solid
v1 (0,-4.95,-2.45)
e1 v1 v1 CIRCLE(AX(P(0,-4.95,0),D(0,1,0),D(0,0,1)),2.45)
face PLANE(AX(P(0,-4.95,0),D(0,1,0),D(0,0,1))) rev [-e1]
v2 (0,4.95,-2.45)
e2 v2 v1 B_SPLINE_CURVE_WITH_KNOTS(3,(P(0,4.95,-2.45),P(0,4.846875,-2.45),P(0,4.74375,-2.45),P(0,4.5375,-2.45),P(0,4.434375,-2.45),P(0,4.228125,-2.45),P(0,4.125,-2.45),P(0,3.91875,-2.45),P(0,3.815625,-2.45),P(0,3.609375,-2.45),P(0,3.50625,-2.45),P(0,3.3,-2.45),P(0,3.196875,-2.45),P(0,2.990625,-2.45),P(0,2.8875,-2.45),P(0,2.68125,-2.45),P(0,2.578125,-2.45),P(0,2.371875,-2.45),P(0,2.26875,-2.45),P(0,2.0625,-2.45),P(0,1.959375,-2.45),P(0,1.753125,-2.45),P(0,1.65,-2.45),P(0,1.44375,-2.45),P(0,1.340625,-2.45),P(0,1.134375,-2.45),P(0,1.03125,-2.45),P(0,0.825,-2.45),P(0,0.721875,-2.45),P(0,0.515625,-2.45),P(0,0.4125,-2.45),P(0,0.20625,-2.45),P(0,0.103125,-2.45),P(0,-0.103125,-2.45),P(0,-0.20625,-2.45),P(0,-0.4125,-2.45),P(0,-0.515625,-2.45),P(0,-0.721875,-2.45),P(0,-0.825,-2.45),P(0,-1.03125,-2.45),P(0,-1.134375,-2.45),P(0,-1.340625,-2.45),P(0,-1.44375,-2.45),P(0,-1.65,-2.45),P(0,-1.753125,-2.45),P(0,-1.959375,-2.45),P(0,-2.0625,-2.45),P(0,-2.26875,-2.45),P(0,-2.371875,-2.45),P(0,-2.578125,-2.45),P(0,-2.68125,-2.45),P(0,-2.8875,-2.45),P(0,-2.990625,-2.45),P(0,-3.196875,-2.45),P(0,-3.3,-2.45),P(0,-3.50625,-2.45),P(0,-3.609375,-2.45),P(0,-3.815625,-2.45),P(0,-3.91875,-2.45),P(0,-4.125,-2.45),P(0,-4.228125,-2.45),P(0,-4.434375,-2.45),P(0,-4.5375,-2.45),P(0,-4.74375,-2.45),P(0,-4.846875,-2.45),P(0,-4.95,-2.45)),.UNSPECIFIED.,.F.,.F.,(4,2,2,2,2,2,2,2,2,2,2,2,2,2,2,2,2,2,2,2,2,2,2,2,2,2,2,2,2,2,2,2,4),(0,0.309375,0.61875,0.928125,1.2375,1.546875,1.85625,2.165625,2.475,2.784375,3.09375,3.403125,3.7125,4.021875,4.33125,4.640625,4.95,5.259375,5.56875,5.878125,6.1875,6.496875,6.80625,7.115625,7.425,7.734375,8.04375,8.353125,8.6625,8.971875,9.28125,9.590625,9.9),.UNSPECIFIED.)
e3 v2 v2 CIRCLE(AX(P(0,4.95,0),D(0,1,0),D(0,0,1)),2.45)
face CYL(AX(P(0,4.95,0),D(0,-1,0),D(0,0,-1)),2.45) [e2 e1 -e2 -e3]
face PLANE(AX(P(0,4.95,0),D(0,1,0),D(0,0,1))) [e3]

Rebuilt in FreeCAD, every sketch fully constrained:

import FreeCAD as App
import Part
import Sketcher

V = App.Vector

doc = App.newDocument("Part")
body = doc.addObject("PartDesign::Body", "Body")

# Sketch on XZ plane
sketch1 = body.newObject("Sketcher::SketchObject", "Sketch")
sketch1.AttachmentSupport = (doc.getObject("XZ_Plane"), [""])
sketch1.MapMode = "FlatFace"
sketch1.addGeometry(Part.Circle(V(0, 0, 0), V(0, 0, 1), 2.5), False)
sketch1.addConstraint([
    Sketcher.Constraint("Coincident", 0, 3, -1, 1),
    Sketcher.Constraint("Diameter", 0, 4.9),
])
pad1 = body.newObject("PartDesign::Pad", "Pad")
pad1.Profile = sketch1
pad1.Length = 9.9
pad1.Midplane = True

doc.recompute()
